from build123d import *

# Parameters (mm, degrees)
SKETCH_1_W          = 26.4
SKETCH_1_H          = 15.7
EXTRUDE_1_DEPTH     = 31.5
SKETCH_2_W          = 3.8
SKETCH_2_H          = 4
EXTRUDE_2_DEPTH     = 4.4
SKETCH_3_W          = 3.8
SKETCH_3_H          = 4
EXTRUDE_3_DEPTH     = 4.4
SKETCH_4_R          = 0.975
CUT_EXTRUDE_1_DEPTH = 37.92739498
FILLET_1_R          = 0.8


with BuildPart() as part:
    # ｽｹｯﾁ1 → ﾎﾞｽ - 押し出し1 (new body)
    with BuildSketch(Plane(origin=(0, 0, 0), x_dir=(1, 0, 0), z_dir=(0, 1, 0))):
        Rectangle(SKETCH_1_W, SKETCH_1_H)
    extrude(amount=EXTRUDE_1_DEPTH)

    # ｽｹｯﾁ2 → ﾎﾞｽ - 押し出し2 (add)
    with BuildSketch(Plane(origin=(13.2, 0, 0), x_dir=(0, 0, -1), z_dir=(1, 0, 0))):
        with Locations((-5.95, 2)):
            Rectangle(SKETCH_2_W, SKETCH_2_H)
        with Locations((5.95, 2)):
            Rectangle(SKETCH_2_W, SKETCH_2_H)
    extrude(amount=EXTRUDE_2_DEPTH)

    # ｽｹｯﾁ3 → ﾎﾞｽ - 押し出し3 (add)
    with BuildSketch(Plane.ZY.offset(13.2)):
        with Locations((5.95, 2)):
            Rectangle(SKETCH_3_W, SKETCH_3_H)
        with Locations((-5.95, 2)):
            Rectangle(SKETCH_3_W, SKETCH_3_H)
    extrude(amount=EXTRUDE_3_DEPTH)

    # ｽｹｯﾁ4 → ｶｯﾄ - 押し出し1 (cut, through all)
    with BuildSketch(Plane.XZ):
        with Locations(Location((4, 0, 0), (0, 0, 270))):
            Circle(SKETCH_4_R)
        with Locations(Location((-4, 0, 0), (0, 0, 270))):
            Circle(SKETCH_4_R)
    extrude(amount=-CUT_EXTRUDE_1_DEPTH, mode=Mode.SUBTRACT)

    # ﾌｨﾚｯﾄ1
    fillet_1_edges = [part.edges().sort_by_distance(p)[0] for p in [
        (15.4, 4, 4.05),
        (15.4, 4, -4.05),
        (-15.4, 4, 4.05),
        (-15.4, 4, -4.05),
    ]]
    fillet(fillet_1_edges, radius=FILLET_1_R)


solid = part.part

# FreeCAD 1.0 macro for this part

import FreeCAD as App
import Part
import Sketcher
from FreeCAD import Vector
Q = App.Units.Quantity


def edges_at(feature, points):
    """Names of the edges that pass closest to the given points."""
    edges = feature.Shape.Edges
    near = lambda p: min(range(len(edges)), key=lambda i: edges[i].distToShape(Part.Vertex(*p))[0])
    return sorted({f"Edge{near(p) + 1}" for p in points})

doc = App.newDocument("Part")
params = doc.addObject("Spreadsheet::Sheet", "Params")
for row, (alias, value) in enumerate([
    ("sketch1_width", "26.4 mm"),
    ("sketch1_height", "15.7 mm"),
    ("pad1_length", "31.5 mm"),
    ("sketch2_width", "4 mm"),
    ("sketch2_height", "3.8 mm"),
    ("pad2_length", "4.4 mm"),
    ("sketch3_width", "4 mm"),
    ("sketch3_height", "3.8 mm"),
    ("pad3_length", "4.4 mm"),
    ("sketch4_diameter", "1.95 mm"),
    ("fillet_radius", "0.8 mm"),
], start=1):
    params.set(f"A{row}", alias)
    params.set(f"B{row}", "=" + value)
    params.setAlias(f"B{row}", alias)

body = doc.addObject("PartDesign::Body", "Body")

sketch1 = body.newObject("Sketcher::SketchObject", "Sketch")
sketch1.AttachmentSupport = (doc.getObject("XZ_Plane"), [""])
sketch1.MapMode = "FlatFace"
sketch1.addGeometry([
    Part.LineSegment(Vector(-13, -8, 0), Vector(-13, 8, 0)),
    Part.LineSegment(Vector(-13, 8, 0), Vector(13, 8, 0)),
    Part.LineSegment(Vector(13, 8, 0), Vector(13, -8, 0)),
    Part.LineSegment(Vector(13, -8, 0), Vector(-13, -8, 0)),
], False)
sketch1.addConstraint([
    Sketcher.Constraint("Coincident", 0, 2, 1, 1),
    Sketcher.Constraint("Coincident", 1, 2, 2, 1),
    Sketcher.Constraint("Coincident", 2, 2, 3, 1),
    Sketcher.Constraint("Coincident", 3, 2, 0, 1),
    Sketcher.Constraint("Vertical", 0),
    Sketcher.Constraint("Horizontal", 1),
    Sketcher.Constraint("Vertical", 2),
    Sketcher.Constraint("Horizontal", 3),
    Sketcher.Constraint("Symmetric", 0, 2, 2, 2, -1, 1),
    Sketcher.Constraint("DistanceX", 1, 1, 1, 2, Q("26.4 mm")),
    Sketcher.Constraint("DistanceY", 0, 1, 0, 2, Q("15.7 mm")),
])
sketch1.setExpression("Constraints[9]", "Params.sketch1_width")
sketch1.setExpression("Constraints[10]", "Params.sketch1_height")
pad1 = body.newObject("PartDesign::Pad", "Pad")
pad1.Profile = sketch1
pad1.setExpression("Length", "Params.pad1_length")
pad1.Reversed = True

sketch2 = body.newObject("Sketcher::SketchObject", "Sketch001")
sketch2.AttachmentSupport = (doc.getObject("YZ_Plane"), [""])
sketch2.MapMode = "FlatFace"
sketch2.AttachmentOffset = App.Placement(Vector(0, 0, 13.2), App.Rotation())
sketch2.addGeometry([
    Part.LineSegment(Vector(4, 7.8, 0), Vector(0, 7.8, 0)),
    Part.LineSegment(Vector(0, 7.8, 0), Vector(0, 4, 0)),
    Part.LineSegment(Vector(0, 4, 0), Vector(4, 4, 0)),
    Part.LineSegment(Vector(4, 4, 0), Vector(4, 7.8, 0)),
    Part.LineSegment(Vector(4, -4, 0), Vector(0, -4, 0)),
    Part.LineSegment(Vector(0, -4, 0), Vector(0, -7.8, 0)),
    Part.LineSegment(Vector(0, -7.8, 0), Vector(4, -7.8, 0)),
    Part.LineSegment(Vector(4, -7.8, 0), Vector(4, -4, 0)),
], False)
sketch2.addConstraint([
    Sketcher.Constraint("Coincident", 0, 2, 1, 1),
    Sketcher.Constraint("Coincident", 1, 2, 2, 1),
    Sketcher.Constraint("Coincident", 2, 2, 3, 1),
    Sketcher.Constraint("Coincident", 3, 2, 0, 1),
    Sketcher.Constraint("Coincident", 4, 2, 5, 1),
    Sketcher.Constraint("Coincident", 5, 2, 6, 1),
    Sketcher.Constraint("Coincident", 6, 2, 7, 1),
    Sketcher.Constraint("Coincident", 7, 2, 4, 1),
    Sketcher.Constraint("Horizontal", 0),
    Sketcher.Constraint("Vertical", 1),
    Sketcher.Constraint("Horizontal", 2),
    Sketcher.Constraint("Vertical", 3),
    Sketcher.Constraint("Horizontal", 4),
    Sketcher.Constraint("Vertical", 5),
    Sketcher.Constraint("Horizontal", 6),
    Sketcher.Constraint("Vertical", 7),
    Sketcher.Constraint("Symmetric", 1, 2, 4, 2, -1, 1),
    Sketcher.Constraint("Symmetric", 0, 2, 5, 2, -1),
    Sketcher.Constraint("Vertical", 3, 2, 6, 2),
    Sketcher.Constraint("DistanceX", 0, 2, 0, 1, Q("4 mm")),
    Sketcher.Constraint("DistanceY", 1, 2, 1, 1, Q("3.8 mm")),
    Sketcher.Constraint("DistanceY", 4, 2, 1, 2, Q("8.1 mm")),
])
sketch2.setExpression("Constraints[19]", "Params.sketch2_width")
sketch2.setExpression("Constraints[20]", "Params.sketch2_height")
pad2 = body.newObject("PartDesign::Pad", "Pad001")
pad2.Profile = sketch2
pad2.setExpression("Length", "Params.pad2_length")

sketch3 = body.newObject("Sketcher::SketchObject", "Sketch002")
sketch3.AttachmentSupport = (doc.getObject("YZ_Plane"), [""])
sketch3.MapMode = "FlatFace"
sketch3.AttachmentOffset = App.Placement(Vector(0, 0, -13.2), App.Rotation())
sketch3.addGeometry([
    Part.LineSegment(Vector(4, 4, 0), Vector(0, 4, 0)),
    Part.LineSegment(Vector(0, 4, 0), Vector(0, 7.8, 0)),
    Part.LineSegment(Vector(0, 7.8, 0), Vector(4, 7.8, 0)),
    Part.LineSegment(Vector(4, 7.8, 0), Vector(4, 4, 0)),
    Part.LineSegment(Vector(4, -7.8, 0), Vector(0, -7.8, 0)),
    Part.LineSegment(Vector(0, -7.8, 0), Vector(0, -4, 0)),
    Part.LineSegment(Vector(0, -4, 0), Vector(4, -4, 0)),
    Part.LineSegment(Vector(4, -4, 0), Vector(4, -7.8, 0)),
], False)
sketch3.addConstraint([
    Sketcher.Constraint("Coincident", 0, 2, 1, 1),
    Sketcher.Constraint("Coincident", 1, 2, 2, 1),
    Sketcher.Constraint("Coincident", 2, 2, 3, 1),
    Sketcher.Constraint("Coincident", 3, 2, 0, 1),
    Sketcher.Constraint("Coincident", 4, 2, 5, 1),
    Sketcher.Constraint("Coincident", 5, 2, 6, 1),
    Sketcher.Constraint("Coincident", 6, 2, 7, 1),
    Sketcher.Constraint("Coincident", 7, 2, 4, 1),
    Sketcher.Constraint("Horizontal", 0),
    Sketcher.Constraint("Vertical", 1),
    Sketcher.Constraint("Horizontal", 2),
    Sketcher.Constraint("Vertical", 3),
    Sketcher.Constraint("Horizontal", 4),
    Sketcher.Constraint("Vertical", 5),
    Sketcher.Constraint("Horizontal", 6),
    Sketcher.Constraint("Vertical", 7),
    Sketcher.Constraint("Symmetric", 1, 2, 4, 2, -1, 1),
    Sketcher.Constraint("Symmetric", 0, 2, 5, 2, -1),
    Sketcher.Constraint("Vertical", 3, 2, 6, 2),
    Sketcher.Constraint("DistanceX", 0, 2, 0, 1, Q("4 mm")),
    Sketcher.Constraint("DistanceY", 1, 1, 1, 2, Q("3.8 mm")),
    Sketcher.Constraint("DistanceY", 4, 2, 0, 2, Q("11.9 mm")),
])
sketch3.setExpression("Constraints[19]", "Params.sketch3_width")
sketch3.setExpression("Constraints[20]", "Params.sketch3_height")
pad3 = body.newObject("PartDesign::Pad", "Pad002")
pad3.Profile = sketch3
pad3.setExpression("Length", "Params.pad3_length")
pad3.Reversed = True

sketch4 = body.newObject("Sketcher::SketchObject", "Sketch003")
sketch4.AttachmentSupport = (doc.getObject("XZ_Plane"), [""])
sketch4.MapMode = "FlatFace"
sketch4.addGeometry([
    Part.Circle(Vector(4, 0, 0), Vector(0, 0, 1), 1),
    Part.Circle(Vector(-4, 0, 0), Vector(0, 0, 1), 1),
], False)
sketch4.addConstraint([
    Sketcher.Constraint("Equal", 0, 1),
    Sketcher.Constraint("Symmetric", 0, 3, 1, 3, -1, 1),
    Sketcher.Constraint("PointOnObject", 0, 3, -1),
    Sketcher.Constraint("Diameter", 0, Q("1.95 mm")),
    Sketcher.Constraint("DistanceX", -1, 1, 0, 3, Q("4 mm")),
])
sketch4.setExpression("Constraints[3]", "Params.sketch4_diameter")
pocket1 = body.newObject("PartDesign::Pocket", "Pocket")
pocket1.Profile = sketch4
pocket1.Type = "ThroughAll"
doc.recompute()

fillet = body.newObject("PartDesign::Fillet", "Fillet")
fillet.Base = (pocket1, edges_at(pocket1, [
    (15.4, 4, 4.05),
    (15.4, 4, -4.05),
    (-15.4, 4, 4.05),
    (-15.4, 4, -4.05),
]))
fillet.setExpression("Radius", "Params.fillet_radius")

doc.recompute()
